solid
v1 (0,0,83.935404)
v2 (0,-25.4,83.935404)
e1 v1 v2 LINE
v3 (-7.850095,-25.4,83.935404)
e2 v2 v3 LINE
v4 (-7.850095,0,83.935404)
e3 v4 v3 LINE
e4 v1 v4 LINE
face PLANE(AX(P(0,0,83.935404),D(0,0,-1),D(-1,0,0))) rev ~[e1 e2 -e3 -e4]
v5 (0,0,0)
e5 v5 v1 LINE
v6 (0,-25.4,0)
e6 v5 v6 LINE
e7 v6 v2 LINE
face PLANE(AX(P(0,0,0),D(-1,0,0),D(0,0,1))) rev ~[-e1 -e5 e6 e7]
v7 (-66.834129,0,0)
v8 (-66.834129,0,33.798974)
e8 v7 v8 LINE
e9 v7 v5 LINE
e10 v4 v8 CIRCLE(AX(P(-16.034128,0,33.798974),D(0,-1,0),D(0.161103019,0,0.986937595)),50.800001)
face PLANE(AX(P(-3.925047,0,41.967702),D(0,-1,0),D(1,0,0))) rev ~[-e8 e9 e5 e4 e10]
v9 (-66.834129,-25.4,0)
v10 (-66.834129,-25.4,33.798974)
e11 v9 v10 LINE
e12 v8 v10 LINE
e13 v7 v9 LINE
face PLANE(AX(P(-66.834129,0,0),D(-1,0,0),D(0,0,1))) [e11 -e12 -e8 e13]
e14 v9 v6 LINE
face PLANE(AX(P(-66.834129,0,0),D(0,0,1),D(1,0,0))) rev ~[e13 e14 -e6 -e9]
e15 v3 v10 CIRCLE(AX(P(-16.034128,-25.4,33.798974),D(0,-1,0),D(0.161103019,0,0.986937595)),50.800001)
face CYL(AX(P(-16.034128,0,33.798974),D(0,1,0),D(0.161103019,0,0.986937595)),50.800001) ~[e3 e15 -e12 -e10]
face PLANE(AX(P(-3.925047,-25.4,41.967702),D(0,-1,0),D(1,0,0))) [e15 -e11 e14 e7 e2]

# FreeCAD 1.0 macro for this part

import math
import FreeCAD as App
import Part
import Sketcher

V = App.Vector
Q = App.Units.Quantity

doc = App.newDocument("Part")
body = doc.addObject("PartDesign::Body", "Body")

# Sketch on XZ plane
sketch1 = doc.addObject("Sketcher::SketchObject", "Sketch")
body.addObject(sketch1)
sketch1.AttachmentSupport = (doc.XZ_Plane, [""])
sketch1.MapMode = "FlatFace"
sketch1.addGeometry([
    Part.LineSegment(V(0, 0, 0), V(0, 84, 0)),  # 0
    Part.LineSegment(V(0, 84, 0), V(-8, 84, 0)),  # 1
    Part.ArcOfCircle(Part.Circle(V(-16, 34, 0), V(0, 0, 1), 51), math.radians(81), math.radians(180)),  # 2
    Part.LineSegment(V(-67, 34, 0), V(-67, 0, 0)),  # 3
    Part.LineSegment(V(-67, 0, 0), V(0, 0, 0)),  # 4
], False)
sketch1.addConstraint([
    Sketcher.Constraint("Coincident", 0, 2, 1, 1),
    Sketcher.Constraint("Coincident", 1, 2, 2, 1),
    Sketcher.Constraint("Tangent", 2, 2, 3, 1),
    Sketcher.Constraint("Coincident", 3, 2, 4, 1),
    Sketcher.Constraint("Coincident", 4, 2, 0, 1),
    Sketcher.Constraint("Vertical", 0),
    Sketcher.Constraint("Horizontal", 1),
    Sketcher.Constraint("Vertical", 3),
    Sketcher.Constraint("Horizontal", 4),
    Sketcher.Constraint("Coincident", 4, 2, -1, 1),
    Sketcher.Constraint("Radius", 2, Q("2 in")),
    Sketcher.Constraint("DistanceX", 4, 1, 4, 2, Q("66.834129 mm")),
    Sketcher.Constraint("DistanceX", 1, 2, 1, 1, Q("7.850095 mm")),
    Sketcher.Constraint("DistanceY", 0, 1, 0, 2, Q("83.935404 mm")),
])
pad1 = doc.addObject("PartDesign::Pad", "Pad")
body.addObject(pad1)
pad1.Profile = sketch1
pad1.Length = Q("1 in")

doc.recompute()
